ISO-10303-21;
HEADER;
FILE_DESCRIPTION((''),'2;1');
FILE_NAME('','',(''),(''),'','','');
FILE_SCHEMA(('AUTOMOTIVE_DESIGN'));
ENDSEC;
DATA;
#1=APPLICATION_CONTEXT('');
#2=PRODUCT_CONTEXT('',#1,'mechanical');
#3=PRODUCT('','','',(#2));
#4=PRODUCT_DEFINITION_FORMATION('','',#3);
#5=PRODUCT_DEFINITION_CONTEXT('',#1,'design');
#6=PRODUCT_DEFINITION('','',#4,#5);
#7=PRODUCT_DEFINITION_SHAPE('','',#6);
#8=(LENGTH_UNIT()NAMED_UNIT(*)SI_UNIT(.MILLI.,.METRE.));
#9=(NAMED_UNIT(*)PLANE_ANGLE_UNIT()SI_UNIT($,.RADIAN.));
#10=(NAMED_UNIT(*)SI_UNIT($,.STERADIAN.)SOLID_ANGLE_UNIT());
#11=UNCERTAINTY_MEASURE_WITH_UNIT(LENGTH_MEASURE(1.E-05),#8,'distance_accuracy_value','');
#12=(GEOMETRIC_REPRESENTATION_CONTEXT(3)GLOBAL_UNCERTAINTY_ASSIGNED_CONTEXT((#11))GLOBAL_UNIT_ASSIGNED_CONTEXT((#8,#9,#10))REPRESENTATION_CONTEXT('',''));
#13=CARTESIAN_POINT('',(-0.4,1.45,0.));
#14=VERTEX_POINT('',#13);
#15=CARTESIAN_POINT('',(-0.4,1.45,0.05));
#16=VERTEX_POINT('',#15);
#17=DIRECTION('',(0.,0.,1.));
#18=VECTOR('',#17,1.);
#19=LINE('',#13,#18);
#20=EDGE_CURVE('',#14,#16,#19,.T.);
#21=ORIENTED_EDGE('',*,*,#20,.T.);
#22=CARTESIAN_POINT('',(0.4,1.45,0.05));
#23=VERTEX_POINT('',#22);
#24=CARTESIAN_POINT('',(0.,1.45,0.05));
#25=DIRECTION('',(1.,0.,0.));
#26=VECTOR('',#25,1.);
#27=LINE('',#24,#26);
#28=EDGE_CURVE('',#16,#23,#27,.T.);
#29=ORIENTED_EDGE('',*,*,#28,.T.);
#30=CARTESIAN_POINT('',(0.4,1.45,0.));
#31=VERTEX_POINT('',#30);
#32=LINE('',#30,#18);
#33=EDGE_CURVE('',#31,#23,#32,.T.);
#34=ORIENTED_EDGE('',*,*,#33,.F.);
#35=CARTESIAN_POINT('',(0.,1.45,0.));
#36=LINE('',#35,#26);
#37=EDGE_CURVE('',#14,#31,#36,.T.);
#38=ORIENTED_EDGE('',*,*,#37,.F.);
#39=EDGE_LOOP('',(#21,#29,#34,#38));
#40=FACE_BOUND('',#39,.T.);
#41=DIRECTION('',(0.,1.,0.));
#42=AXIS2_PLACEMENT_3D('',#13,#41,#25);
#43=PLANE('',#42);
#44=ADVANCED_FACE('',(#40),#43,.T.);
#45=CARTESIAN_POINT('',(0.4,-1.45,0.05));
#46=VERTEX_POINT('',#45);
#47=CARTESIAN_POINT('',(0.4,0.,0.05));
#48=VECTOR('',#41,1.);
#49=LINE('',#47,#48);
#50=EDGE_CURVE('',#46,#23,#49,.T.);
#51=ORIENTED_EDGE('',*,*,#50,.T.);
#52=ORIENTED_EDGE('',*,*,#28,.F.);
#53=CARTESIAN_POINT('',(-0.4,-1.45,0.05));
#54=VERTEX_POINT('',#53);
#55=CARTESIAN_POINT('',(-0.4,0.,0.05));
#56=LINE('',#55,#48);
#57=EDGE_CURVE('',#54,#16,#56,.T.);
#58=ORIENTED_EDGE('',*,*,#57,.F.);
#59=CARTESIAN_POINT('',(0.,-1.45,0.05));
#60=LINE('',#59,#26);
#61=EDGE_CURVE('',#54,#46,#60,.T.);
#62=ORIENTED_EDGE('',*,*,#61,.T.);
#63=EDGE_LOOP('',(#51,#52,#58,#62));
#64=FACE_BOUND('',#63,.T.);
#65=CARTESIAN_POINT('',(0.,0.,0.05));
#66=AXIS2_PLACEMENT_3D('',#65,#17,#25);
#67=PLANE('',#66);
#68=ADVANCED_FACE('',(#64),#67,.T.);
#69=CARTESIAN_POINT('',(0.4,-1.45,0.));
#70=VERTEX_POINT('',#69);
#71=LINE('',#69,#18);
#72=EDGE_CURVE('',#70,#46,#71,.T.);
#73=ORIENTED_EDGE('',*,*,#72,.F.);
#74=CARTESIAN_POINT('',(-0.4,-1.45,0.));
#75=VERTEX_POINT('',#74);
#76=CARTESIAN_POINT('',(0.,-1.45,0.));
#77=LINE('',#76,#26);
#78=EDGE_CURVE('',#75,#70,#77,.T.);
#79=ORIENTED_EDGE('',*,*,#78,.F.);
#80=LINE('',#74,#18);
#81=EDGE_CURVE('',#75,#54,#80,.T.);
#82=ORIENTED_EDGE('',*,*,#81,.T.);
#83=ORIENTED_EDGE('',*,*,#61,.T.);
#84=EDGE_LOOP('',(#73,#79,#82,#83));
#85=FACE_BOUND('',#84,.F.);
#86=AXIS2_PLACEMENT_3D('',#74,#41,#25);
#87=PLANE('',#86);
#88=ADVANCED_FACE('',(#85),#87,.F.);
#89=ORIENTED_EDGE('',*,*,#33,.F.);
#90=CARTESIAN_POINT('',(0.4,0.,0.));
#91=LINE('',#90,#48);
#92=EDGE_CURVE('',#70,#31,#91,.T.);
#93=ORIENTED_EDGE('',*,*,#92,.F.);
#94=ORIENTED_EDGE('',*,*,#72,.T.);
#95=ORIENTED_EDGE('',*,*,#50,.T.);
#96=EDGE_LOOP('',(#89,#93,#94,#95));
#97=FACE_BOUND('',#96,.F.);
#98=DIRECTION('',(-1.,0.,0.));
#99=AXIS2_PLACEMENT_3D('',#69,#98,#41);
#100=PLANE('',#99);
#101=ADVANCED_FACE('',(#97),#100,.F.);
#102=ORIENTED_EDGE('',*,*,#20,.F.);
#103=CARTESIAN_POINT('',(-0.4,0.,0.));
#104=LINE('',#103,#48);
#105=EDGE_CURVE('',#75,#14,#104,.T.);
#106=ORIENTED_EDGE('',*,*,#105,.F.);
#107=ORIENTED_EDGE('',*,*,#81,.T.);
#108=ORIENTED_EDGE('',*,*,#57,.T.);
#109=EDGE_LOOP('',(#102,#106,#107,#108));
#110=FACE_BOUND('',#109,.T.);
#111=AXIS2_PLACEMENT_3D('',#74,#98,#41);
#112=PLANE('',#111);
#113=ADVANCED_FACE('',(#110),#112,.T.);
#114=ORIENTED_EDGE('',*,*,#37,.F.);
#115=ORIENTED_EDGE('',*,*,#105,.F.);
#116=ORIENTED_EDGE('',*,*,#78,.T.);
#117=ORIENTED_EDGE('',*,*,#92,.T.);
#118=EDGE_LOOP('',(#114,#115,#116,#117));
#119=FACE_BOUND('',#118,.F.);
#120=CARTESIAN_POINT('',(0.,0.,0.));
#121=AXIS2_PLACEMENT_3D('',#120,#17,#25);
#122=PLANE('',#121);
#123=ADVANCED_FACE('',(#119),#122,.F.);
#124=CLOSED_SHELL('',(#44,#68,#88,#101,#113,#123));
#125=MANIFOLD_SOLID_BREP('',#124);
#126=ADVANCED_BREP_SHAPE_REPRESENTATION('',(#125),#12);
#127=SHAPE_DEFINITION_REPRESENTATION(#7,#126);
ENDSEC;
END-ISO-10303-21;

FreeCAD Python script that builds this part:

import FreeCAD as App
import Part
import Sketcher

V = App.Vector
Q = App.Units.Quantity


def add_polygon(sketch, points):
    """Adds a closed chain of lines whose ends are joined by coincident constraints."""
    first, n = sketch.GeometryCount, len(points)
    for a, b in zip(points, points[1:] + points[:1]):
        sketch.addGeometry(Part.LineSegment(App.Vector(*a, 0), App.Vector(*b, 0)), False)
    for i in range(n):
        sketch.addConstraint(Sketcher.Constraint("Coincident", first + i, 2, first + (i + 1) % n, 1))

doc = App.newDocument("Part")
body = doc.addObject("PartDesign::Body", "Body")

sketch1 = doc.addObject("Sketcher::SketchObject", "Sketch")
body.addObject(sketch1)
sketch1.AttachmentSupport = (doc.XY_Plane, [""])
sketch1.MapMode = "FlatFace"
add_polygon(sketch1, [(-0.4, 1.4), (-0.4, -1.4), (0.4, -1.4), (0.4, 1.4)])
sketch1.addConstraint([
    Sketcher.Constraint("Vertical", 0),
    Sketcher.Constraint("Horizontal", 1),
    Sketcher.Constraint("Vertical", 2),
    Sketcher.Constraint("Horizontal", 3),
    Sketcher.Constraint("Symmetric", 0, 2, 2, 2, -1, 1),
    Sketcher.Constraint("DistanceX", 1, 1, 1, 2, Q("0.8 mm")),
    Sketcher.Constraint("DistanceY", 0, 2, 0, 1, Q("2.9 mm")),
])
pad1 = doc.addObject("PartDesign::Pad", "Pad")
body.addObject(pad1)
pad1.Profile = sketch1
pad1.Length = 0.05

doc.recompute()
